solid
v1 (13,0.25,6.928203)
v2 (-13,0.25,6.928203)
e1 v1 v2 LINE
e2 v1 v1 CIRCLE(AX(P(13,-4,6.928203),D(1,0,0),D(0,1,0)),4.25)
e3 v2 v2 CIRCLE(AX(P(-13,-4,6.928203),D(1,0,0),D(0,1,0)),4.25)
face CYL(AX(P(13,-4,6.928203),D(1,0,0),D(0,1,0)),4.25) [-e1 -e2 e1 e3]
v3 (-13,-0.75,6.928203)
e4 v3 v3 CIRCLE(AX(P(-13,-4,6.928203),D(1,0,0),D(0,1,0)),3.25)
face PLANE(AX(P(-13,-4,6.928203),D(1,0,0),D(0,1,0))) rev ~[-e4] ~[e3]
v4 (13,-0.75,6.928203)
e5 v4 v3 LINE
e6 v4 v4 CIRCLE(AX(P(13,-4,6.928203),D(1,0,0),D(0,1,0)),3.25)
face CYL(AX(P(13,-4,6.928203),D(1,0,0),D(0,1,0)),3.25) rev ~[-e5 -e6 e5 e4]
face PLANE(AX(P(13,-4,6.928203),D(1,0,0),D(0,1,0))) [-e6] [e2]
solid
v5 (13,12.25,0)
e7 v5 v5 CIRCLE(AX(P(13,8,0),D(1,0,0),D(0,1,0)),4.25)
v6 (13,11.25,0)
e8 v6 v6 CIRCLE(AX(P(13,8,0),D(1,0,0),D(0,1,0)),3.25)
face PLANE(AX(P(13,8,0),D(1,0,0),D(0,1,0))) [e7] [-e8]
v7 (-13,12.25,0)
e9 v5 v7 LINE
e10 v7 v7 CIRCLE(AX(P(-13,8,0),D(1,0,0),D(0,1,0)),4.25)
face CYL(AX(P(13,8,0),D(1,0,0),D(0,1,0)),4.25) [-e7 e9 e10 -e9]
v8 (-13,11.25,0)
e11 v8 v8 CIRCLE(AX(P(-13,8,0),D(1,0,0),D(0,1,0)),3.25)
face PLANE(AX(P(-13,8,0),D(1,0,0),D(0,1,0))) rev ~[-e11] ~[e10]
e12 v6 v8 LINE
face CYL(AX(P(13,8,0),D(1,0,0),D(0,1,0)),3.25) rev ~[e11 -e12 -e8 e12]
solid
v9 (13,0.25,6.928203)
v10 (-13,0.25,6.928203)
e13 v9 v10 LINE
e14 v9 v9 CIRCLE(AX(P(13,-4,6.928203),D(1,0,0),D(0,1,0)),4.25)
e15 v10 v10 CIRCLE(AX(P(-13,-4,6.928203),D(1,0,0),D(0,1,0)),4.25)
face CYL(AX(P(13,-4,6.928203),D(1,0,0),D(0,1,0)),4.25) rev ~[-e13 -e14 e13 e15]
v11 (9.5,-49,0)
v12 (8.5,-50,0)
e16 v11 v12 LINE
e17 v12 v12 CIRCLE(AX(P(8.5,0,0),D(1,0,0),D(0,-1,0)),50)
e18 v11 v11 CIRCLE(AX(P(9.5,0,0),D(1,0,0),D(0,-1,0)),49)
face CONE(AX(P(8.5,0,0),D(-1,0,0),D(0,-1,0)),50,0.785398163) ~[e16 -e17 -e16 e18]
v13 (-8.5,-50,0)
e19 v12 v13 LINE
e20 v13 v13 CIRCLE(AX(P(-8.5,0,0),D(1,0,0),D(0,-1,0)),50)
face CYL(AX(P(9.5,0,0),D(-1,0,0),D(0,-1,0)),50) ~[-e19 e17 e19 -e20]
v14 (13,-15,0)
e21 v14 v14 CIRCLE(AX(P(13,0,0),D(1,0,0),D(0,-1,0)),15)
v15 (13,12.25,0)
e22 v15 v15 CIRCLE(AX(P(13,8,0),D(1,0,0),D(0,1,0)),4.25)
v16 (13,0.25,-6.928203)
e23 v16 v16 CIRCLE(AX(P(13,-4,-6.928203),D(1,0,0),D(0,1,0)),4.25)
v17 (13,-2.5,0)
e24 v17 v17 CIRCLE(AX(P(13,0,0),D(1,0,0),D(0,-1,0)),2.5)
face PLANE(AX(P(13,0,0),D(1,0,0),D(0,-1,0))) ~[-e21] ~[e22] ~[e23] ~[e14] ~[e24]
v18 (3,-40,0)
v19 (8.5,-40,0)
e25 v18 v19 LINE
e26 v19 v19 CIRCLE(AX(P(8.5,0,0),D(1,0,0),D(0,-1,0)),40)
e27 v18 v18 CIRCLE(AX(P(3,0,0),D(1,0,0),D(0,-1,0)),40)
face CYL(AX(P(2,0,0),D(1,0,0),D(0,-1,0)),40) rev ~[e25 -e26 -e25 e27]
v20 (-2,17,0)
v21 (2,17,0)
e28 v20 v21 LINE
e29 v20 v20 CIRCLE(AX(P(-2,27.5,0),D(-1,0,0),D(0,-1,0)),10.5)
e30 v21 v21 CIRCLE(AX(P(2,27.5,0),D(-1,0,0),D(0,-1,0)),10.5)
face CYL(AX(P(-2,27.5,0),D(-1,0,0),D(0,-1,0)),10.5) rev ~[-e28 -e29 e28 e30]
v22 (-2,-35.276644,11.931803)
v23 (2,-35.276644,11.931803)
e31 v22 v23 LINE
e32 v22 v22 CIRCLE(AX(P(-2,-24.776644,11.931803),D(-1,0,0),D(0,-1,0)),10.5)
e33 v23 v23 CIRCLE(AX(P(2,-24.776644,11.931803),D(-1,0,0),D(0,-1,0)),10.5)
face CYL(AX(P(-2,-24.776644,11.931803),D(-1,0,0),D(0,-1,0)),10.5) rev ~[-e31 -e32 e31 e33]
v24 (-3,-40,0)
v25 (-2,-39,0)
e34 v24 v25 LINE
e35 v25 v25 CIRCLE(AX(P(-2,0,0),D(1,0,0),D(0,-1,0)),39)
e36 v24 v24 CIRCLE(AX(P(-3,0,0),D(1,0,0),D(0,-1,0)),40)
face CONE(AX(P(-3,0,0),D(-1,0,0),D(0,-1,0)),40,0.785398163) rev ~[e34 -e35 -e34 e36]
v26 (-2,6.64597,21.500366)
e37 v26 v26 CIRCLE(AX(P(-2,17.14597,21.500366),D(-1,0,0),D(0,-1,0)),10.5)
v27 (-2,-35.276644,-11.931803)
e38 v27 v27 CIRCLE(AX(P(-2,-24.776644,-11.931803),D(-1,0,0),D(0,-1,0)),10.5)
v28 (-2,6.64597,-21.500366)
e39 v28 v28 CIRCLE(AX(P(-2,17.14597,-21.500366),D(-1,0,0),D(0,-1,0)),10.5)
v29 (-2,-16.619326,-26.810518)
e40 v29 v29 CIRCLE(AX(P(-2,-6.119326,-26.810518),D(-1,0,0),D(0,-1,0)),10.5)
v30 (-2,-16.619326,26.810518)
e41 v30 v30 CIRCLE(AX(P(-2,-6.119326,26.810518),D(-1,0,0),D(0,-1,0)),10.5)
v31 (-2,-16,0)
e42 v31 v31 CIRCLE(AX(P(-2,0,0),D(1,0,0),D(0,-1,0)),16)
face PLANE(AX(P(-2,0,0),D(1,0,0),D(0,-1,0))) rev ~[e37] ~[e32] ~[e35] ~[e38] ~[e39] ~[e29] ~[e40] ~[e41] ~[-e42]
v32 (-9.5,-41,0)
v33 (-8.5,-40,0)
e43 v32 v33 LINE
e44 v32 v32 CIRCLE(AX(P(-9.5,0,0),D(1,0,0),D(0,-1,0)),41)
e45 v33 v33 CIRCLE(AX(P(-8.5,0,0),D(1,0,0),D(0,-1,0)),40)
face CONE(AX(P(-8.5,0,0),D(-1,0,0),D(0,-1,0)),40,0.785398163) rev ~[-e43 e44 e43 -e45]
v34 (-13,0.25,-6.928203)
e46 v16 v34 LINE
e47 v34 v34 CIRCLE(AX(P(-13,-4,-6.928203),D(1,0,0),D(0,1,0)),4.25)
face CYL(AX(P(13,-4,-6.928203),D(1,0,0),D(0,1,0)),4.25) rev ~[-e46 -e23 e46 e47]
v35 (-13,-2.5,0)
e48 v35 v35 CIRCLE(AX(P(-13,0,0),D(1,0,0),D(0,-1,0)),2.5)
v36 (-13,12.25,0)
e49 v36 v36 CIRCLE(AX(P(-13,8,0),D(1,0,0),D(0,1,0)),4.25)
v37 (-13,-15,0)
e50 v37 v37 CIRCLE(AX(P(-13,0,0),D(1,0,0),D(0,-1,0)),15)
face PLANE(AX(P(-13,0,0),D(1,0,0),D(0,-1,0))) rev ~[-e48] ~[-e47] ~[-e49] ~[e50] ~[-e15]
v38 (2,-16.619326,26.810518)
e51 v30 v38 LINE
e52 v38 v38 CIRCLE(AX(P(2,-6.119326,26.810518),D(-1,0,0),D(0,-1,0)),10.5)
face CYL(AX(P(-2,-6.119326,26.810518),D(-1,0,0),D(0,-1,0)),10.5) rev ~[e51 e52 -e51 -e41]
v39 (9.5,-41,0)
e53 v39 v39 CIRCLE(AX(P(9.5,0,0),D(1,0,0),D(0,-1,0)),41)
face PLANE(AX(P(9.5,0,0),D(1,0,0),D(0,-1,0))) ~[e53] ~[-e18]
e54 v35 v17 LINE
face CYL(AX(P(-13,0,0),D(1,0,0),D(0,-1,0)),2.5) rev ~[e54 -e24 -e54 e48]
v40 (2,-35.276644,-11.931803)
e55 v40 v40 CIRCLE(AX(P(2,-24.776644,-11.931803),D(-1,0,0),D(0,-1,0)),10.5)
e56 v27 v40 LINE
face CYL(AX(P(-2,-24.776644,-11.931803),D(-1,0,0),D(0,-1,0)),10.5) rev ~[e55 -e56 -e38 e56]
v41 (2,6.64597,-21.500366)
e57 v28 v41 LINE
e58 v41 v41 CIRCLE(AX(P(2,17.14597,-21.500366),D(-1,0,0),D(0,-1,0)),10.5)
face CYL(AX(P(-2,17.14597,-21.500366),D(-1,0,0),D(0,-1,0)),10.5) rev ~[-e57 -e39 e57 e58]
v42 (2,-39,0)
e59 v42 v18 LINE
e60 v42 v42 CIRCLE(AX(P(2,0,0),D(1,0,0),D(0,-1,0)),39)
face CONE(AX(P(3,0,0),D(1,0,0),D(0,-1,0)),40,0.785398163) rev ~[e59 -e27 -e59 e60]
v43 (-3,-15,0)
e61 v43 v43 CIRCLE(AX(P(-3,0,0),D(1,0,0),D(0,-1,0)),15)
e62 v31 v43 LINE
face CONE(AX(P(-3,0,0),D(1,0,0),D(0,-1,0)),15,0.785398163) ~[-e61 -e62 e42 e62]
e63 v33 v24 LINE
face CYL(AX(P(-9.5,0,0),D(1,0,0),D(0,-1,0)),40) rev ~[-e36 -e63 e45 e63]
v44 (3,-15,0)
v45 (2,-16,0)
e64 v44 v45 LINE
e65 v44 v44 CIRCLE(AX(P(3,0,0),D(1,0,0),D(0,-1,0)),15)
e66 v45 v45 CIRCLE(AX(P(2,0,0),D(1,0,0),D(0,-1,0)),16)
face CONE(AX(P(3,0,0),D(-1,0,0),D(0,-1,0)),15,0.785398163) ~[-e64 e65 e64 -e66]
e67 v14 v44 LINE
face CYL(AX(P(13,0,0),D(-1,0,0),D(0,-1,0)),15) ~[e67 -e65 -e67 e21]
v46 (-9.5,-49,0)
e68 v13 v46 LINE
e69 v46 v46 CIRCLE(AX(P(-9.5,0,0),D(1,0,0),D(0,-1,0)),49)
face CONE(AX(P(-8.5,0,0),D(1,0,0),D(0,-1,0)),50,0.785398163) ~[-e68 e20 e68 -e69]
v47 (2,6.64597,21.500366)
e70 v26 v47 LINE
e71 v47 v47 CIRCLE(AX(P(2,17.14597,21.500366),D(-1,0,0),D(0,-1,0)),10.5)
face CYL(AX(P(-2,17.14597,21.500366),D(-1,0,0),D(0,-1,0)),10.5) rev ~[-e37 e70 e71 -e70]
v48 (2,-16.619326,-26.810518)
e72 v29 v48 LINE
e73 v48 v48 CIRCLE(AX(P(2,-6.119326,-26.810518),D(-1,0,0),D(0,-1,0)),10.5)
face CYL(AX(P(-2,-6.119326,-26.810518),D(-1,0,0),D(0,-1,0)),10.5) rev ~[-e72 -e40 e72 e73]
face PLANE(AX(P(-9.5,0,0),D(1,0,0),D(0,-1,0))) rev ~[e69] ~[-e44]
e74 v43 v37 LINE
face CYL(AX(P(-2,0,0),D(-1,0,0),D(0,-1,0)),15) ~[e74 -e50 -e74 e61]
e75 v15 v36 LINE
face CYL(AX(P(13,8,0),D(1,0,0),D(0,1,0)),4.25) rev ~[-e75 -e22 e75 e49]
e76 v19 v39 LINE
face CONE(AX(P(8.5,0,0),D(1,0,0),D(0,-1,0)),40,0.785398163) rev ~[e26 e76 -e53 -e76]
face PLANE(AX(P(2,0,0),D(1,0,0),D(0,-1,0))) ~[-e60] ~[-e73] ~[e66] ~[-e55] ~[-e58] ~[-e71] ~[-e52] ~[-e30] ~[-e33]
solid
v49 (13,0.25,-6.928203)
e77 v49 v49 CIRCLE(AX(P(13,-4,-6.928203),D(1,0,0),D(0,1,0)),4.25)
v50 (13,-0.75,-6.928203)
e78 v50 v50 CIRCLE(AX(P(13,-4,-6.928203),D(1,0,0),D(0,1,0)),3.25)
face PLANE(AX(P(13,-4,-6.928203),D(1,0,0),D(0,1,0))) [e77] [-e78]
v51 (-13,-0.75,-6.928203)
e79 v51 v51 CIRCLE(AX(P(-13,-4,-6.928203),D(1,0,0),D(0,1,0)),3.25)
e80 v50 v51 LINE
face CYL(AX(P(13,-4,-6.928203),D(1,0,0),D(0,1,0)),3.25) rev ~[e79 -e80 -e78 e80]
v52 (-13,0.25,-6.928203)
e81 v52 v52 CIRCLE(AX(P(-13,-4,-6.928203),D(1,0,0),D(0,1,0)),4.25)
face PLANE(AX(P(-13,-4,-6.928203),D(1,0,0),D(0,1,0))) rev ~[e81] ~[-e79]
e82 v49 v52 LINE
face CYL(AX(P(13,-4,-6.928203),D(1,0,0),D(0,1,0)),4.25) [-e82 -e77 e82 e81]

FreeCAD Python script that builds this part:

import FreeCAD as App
import Part
import Sketcher

V = App.Vector


def edges_at(feature, points):
    """Names of the edges that pass closest to the given points."""
    edges = feature.Shape.Edges
    near = lambda p: min(range(len(edges)), key=lambda i: edges[i].distToShape(Part.Vertex(*p))[0])
    return sorted({f"Edge{near(p) + 1}" for p in points})

doc = App.newDocument("Part")
body = doc.addObject("PartDesign::Body", "Body")

sketch1 = doc.addObject("Sketcher::SketchObject", "Sketch")
body.addObject(sketch1)
sketch1.AttachmentSupport = (doc.XY_Plane, [""])
sketch1.MapMode = "FlatFace"
sketch1.addGeometry([
    Part.LineSegment(V(-13, 2, 0), V(13, 2, 0)),
    Part.LineSegment(V(13, 2, 0), V(13, 15, 0)),
    Part.LineSegment(V(13, 15, 0), V(2, 15, 0)),
    Part.LineSegment(V(2, 15, 0), V(2, 40, 0)),
    Part.LineSegment(V(2, 40, 0), V(10, 40, 0)),
    Part.LineSegment(V(10, 40, 0), V(10, 50, 0)),
    Part.LineSegment(V(10, 50, 0), V(-10, 50, 0)),
    Part.LineSegment(V(-10, 50, 0), V(-10, 40, 0)),
    Part.LineSegment(V(-10, 40, 0), V(-2, 40, 0)),
    Part.LineSegment(V(-2, 40, 0), V(-2, 15, 0)),
    Part.LineSegment(V(-2, 15, 0), V(-13, 15, 0)),
    Part.LineSegment(V(-13, 15, 0), V(-13, 2, 0)),
], False)
sketch1.addConstraint([
    Sketcher.Constraint("Coincident", 0, 2, 1, 1),
    Sketcher.Constraint("Coincident", 1, 2, 2, 1),
    Sketcher.Constraint("Coincident", 2, 2, 3, 1),
    Sketcher.Constraint("Coincident", 3, 2, 4, 1),
    Sketcher.Constraint("Coincident", 4, 2, 5, 1),
    Sketcher.Constraint("Coincident", 5, 2, 6, 1),
    Sketcher.Constraint("Coincident", 6, 2, 7, 1),
    Sketcher.Constraint("Coincident", 7, 2, 8, 1),
    Sketcher.Constraint("Coincident", 8, 2, 9, 1),
    Sketcher.Constraint("Coincident", 9, 2, 10, 1),
    Sketcher.Constraint("Coincident", 10, 2, 11, 1),
    Sketcher.Constraint("Coincident", 11, 2, 0, 1),
    Sketcher.Constraint("Horizontal", 0),
    Sketcher.Constraint("Vertical", 1),
    Sketcher.Constraint("Horizontal", 2),
    Sketcher.Constraint("Vertical", 3),
    Sketcher.Constraint("Horizontal", 4),
    Sketcher.Constraint("Vertical", 5),
    Sketcher.Constraint("Horizontal", 6),
    Sketcher.Constraint("Vertical", 7),
    Sketcher.Constraint("Horizontal", 8),
    Sketcher.Constraint("Vertical", 9),
    Sketcher.Constraint("Horizontal", 10),
    Sketcher.Constraint("Vertical", 11),
    Sketcher.Constraint("Symmetric", 4, 2, 7, 2, -2),
    Sketcher.Constraint("Symmetric", 2, 2, 9, 2, -2),
    Sketcher.Constraint("Equal", 2, 10),
    Sketcher.Constraint("DistanceX", 0, 1, 0, 2, 26.0),
    Sketcher.Constraint("DistanceX", 2, 2, 2, 1, 11.0),
    Sketcher.Constraint("DistanceX", 6, 2, 6, 1, 19.0),
    Sketcher.Constraint("DistanceY", 3, 1, 3, 2, 25.0),
    Sketcher.Constraint("DistanceY", 5, 1, 5, 2, 10.0),
    Sketcher.Constraint("DistanceY", 1, 1, 1, 2, 12.5),
    Sketcher.Constraint("DistanceY", -1, 1, 1, 2, 15.0),
])
revolution = doc.addObject("PartDesign::Revolution", "Revolution")
body.addObject(revolution)
revolution.Profile = sketch1
revolution.ReferenceAxis = (sketch1, ["H_Axis"])
revolution.Angle = 360
doc.recompute()

chamfer = doc.addObject("PartDesign::Chamfer", "Chamfer")
body.addObject(chamfer)
chamfer.Base = (revolution, edges_at(revolution, [
    (-2, 15, 0),
    (2, 15, 0),
    (2, 40, 0),
    (9.5, 40, 0),
    (9.5, 50, 0),
    (-9.5, 50, 0),
    (-9.5, 40, 0),
    (-2, 40, 0),
]))
chamfer.Size = 1

sketch2 = doc.addObject("Sketcher::SketchObject", "Sketch001")
body.addObject(sketch2)
sketch2.AttachmentSupport = (doc.YZ_Plane, [""])
sketch2.MapMode = "FlatFace"
sketch2.AttachmentOffset = App.Placement(V(0, 0, -2), App.Rotation())
sketch2.addGeometry([
    Part.Circle(V(28, 0, 0), V(0, 0, 1), 10),
    Part.Circle(V(17, 22, 0), V(0, 0, 1), 10),
    Part.Circle(V(-6, 27, 0), V(0, 0, 1), 10),
    Part.Circle(V(-25, 12, 0), V(0, 0, 1), 10),
    Part.Circle(V(-25, -12, 0), V(0, 0, 1), 10),
    Part.Circle(V(-6, -27, 0), V(0, 0, 1), 10),
    Part.Circle(V(17, -22, 0), V(0, 0, 1), 10),
], False)
sketch2.addConstraint([
    Sketcher.Constraint("Equal", 0, 1),
    Sketcher.Constraint("Equal", 1, 2),
    Sketcher.Constraint("Equal", 2, 3),
    Sketcher.Constraint("Equal", 3, 4),
    Sketcher.Constraint("Equal", 4, 5),
    Sketcher.Constraint("Equal", 5, 6),
    Sketcher.Constraint("Symmetric", 3, 3, 4, 3, -1),
    Sketcher.Constraint("Symmetric", 2, 3, 5, 3, -1),
    Sketcher.Constraint("Symmetric", 1, 3, 6, 3, -1),
    Sketcher.Constraint("PointOnObject", 0, 3, -1),
    Sketcher.Constraint("Diameter", 0, 21.0),
    Sketcher.Constraint("DistanceX", -1, 1, 0, 3, 27.5),
    Sketcher.Constraint("DistanceX", -1, 1, 1, 3, 17.14597),
    Sketcher.Constraint("DistanceY", 1, 3, 2, 3, 5.310152),
    Sketcher.Constraint("DistanceX", 3, 3, 2, 3, 18.657318),
    Sketcher.Constraint("DistanceY", 4, 3, 2, 3, 38.74232),
    Sketcher.Constraint("DistanceY", 6, 3, 1, 3, 43.000732),
    Sketcher.Constraint("DistanceX", 2, 3, -1, 1, 6.119326),
])
pocket1 = doc.addObject("PartDesign::Pocket", "Pocket")
body.addObject(pocket1)
pocket1.Profile = sketch2
pocket1.Type = "ThroughAll"
pocket1.Reversed = True

sketch3 = doc.addObject("Sketcher::SketchObject", "Sketch002")
body.addObject(sketch3)
sketch3.AttachmentSupport = (doc.YZ_Plane, [""])
sketch3.MapMode = "FlatFace"
sketch3.AttachmentOffset = App.Placement(V(0, 0, 13), App.Rotation())
sketch3.addGeometry([
    Part.Circle(V(8, 0, 0), V(0, 0, 1), 4.2),
    Part.Circle(V(-4, -6.9, 0), V(0, 0, 1), 4.2),
    Part.Circle(V(-4, 6.9, 0), V(0, 0, 1), 4.2),
], False)
sketch3.addConstraint([
    Sketcher.Constraint("Equal", 0, 1),
    Sketcher.Constraint("Equal", 1, 2),
    Sketcher.Constraint("Symmetric", 1, 3, 2, 3, -1),
    Sketcher.Constraint("PointOnObject", 0, 3, -1),
    Sketcher.Constraint("Diameter", 0, 8.5),
    Sketcher.Constraint("DistanceX", -1, 1, 0, 3, 8.0),
    Sketcher.Constraint("DistanceX", 1, 3, -1, 1, 4.0),
    Sketcher.Constraint("DistanceY", 1, 3, -1, 1, 6.928203),
])
pocket2 = doc.addObject("PartDesign::Pocket", "Pocket001")
body.addObject(pocket2)
pocket2.Profile = sketch3
pocket2.Type = "ThroughAll"
body2 = doc.addObject("PartDesign::Body", "Body001")

sketch4 = doc.addObject("Sketcher::SketchObject", "Sketch003")
body2.addObject(sketch4)
sketch4.AttachmentSupport = (doc.getObject("YZ_Plane001"), [""])
sketch4.MapMode = "FlatFace"
sketch4.AttachmentOffset = App.Placement(V(0, 0, 13), App.Rotation())
sketch4.addGeometry([
    Part.Circle(V(-4, 6.9, 0), V(0, 0, 1), 4.2),
    Part.Circle(V(-4, 6.9, 0), V(0, 0, 1), 3.2),
], False)
sketch4.addConstraint([
    Sketcher.Constraint("Coincident", 1, 3, 0, 3),
    Sketcher.Constraint("Diameter", 0, 8.5),
    Sketcher.Constraint("Diameter", 1, 6.5),
    Sketcher.Constraint("DistanceX", 0, 3, -1, 1, 4.0),
    Sketcher.Constraint("DistanceY", -1, 1, 0, 3, 6.928203),
])
pad1 = doc.addObject("PartDesign::Pad", "Pad")
body2.addObject(pad1)
pad1.Profile = sketch4
pad1.Length = 26
pad1.Reversed = True
body3 = doc.addObject("PartDesign::Body", "Body002")

sketch5 = doc.addObject("Sketcher::SketchObject", "Sketch004")
body3.addObject(sketch5)
sketch5.AttachmentSupport = (doc.getObject("YZ_Plane002"), [""])
sketch5.MapMode = "FlatFace"
sketch5.AttachmentOffset = App.Placement(V(0, 0, 13), App.Rotation())
sketch5.addGeometry([
    Part.Circle(V(-4, -6.9, 0), V(0, 0, 1), 4.2),
    Part.Circle(V(-4, -6.9, 0), V(0, 0, 1), 3.2),
], False)
sketch5.addConstraint([
    Sketcher.Constraint("Coincident", 1, 3, 0, 3),
    Sketcher.Constraint("Diameter", 0, 8.5),
    Sketcher.Constraint("Diameter", 1, 6.5),
    Sketcher.Constraint("DistanceX", 0, 3, -1, 1, 4.0),
    Sketcher.Constraint("DistanceY", 0, 3, -1, 1, 6.928203),
])
pad2 = doc.addObject("PartDesign::Pad", "Pad001")
body3.addObject(pad2)
pad2.Profile = sketch5
pad2.Length = 26
pad2.Reversed = True
body4 = doc.addObject("PartDesign::Body", "Body003")

sketch6 = doc.addObject("Sketcher::SketchObject", "Sketch005")
body4.addObject(sketch6)
sketch6.AttachmentSupport = (doc.getObject("YZ_Plane003"), [""])
sketch6.MapMode = "FlatFace"
sketch6.AttachmentOffset = App.Placement(V(0, 0, 13), App.Rotation())
sketch6.addGeometry([
    Part.Circle(V(8, 0, 0), V(0, 0, 1), 4.2),
    Part.Circle(V(8, 0, 0), V(0, 0, 1), 3.2),
], False)
sketch6.addConstraint([
    Sketcher.Constraint("Coincident", 1, 3, 0, 3),
    Sketcher.Constraint("PointOnObject", 0, 3, -1),
    Sketcher.Constraint("Diameter", 0, 8.5),
    Sketcher.Constraint("Diameter", 1, 6.5),
    Sketcher.Constraint("DistanceX", -1, 1, 0, 3, 8.0),
])
pad3 = doc.addObject("PartDesign::Pad", "Pad002")
body4.addObject(pad3)
pad3.Profile = sketch6
pad3.Length = 26
pad3.Reversed = True

doc.recompute()
